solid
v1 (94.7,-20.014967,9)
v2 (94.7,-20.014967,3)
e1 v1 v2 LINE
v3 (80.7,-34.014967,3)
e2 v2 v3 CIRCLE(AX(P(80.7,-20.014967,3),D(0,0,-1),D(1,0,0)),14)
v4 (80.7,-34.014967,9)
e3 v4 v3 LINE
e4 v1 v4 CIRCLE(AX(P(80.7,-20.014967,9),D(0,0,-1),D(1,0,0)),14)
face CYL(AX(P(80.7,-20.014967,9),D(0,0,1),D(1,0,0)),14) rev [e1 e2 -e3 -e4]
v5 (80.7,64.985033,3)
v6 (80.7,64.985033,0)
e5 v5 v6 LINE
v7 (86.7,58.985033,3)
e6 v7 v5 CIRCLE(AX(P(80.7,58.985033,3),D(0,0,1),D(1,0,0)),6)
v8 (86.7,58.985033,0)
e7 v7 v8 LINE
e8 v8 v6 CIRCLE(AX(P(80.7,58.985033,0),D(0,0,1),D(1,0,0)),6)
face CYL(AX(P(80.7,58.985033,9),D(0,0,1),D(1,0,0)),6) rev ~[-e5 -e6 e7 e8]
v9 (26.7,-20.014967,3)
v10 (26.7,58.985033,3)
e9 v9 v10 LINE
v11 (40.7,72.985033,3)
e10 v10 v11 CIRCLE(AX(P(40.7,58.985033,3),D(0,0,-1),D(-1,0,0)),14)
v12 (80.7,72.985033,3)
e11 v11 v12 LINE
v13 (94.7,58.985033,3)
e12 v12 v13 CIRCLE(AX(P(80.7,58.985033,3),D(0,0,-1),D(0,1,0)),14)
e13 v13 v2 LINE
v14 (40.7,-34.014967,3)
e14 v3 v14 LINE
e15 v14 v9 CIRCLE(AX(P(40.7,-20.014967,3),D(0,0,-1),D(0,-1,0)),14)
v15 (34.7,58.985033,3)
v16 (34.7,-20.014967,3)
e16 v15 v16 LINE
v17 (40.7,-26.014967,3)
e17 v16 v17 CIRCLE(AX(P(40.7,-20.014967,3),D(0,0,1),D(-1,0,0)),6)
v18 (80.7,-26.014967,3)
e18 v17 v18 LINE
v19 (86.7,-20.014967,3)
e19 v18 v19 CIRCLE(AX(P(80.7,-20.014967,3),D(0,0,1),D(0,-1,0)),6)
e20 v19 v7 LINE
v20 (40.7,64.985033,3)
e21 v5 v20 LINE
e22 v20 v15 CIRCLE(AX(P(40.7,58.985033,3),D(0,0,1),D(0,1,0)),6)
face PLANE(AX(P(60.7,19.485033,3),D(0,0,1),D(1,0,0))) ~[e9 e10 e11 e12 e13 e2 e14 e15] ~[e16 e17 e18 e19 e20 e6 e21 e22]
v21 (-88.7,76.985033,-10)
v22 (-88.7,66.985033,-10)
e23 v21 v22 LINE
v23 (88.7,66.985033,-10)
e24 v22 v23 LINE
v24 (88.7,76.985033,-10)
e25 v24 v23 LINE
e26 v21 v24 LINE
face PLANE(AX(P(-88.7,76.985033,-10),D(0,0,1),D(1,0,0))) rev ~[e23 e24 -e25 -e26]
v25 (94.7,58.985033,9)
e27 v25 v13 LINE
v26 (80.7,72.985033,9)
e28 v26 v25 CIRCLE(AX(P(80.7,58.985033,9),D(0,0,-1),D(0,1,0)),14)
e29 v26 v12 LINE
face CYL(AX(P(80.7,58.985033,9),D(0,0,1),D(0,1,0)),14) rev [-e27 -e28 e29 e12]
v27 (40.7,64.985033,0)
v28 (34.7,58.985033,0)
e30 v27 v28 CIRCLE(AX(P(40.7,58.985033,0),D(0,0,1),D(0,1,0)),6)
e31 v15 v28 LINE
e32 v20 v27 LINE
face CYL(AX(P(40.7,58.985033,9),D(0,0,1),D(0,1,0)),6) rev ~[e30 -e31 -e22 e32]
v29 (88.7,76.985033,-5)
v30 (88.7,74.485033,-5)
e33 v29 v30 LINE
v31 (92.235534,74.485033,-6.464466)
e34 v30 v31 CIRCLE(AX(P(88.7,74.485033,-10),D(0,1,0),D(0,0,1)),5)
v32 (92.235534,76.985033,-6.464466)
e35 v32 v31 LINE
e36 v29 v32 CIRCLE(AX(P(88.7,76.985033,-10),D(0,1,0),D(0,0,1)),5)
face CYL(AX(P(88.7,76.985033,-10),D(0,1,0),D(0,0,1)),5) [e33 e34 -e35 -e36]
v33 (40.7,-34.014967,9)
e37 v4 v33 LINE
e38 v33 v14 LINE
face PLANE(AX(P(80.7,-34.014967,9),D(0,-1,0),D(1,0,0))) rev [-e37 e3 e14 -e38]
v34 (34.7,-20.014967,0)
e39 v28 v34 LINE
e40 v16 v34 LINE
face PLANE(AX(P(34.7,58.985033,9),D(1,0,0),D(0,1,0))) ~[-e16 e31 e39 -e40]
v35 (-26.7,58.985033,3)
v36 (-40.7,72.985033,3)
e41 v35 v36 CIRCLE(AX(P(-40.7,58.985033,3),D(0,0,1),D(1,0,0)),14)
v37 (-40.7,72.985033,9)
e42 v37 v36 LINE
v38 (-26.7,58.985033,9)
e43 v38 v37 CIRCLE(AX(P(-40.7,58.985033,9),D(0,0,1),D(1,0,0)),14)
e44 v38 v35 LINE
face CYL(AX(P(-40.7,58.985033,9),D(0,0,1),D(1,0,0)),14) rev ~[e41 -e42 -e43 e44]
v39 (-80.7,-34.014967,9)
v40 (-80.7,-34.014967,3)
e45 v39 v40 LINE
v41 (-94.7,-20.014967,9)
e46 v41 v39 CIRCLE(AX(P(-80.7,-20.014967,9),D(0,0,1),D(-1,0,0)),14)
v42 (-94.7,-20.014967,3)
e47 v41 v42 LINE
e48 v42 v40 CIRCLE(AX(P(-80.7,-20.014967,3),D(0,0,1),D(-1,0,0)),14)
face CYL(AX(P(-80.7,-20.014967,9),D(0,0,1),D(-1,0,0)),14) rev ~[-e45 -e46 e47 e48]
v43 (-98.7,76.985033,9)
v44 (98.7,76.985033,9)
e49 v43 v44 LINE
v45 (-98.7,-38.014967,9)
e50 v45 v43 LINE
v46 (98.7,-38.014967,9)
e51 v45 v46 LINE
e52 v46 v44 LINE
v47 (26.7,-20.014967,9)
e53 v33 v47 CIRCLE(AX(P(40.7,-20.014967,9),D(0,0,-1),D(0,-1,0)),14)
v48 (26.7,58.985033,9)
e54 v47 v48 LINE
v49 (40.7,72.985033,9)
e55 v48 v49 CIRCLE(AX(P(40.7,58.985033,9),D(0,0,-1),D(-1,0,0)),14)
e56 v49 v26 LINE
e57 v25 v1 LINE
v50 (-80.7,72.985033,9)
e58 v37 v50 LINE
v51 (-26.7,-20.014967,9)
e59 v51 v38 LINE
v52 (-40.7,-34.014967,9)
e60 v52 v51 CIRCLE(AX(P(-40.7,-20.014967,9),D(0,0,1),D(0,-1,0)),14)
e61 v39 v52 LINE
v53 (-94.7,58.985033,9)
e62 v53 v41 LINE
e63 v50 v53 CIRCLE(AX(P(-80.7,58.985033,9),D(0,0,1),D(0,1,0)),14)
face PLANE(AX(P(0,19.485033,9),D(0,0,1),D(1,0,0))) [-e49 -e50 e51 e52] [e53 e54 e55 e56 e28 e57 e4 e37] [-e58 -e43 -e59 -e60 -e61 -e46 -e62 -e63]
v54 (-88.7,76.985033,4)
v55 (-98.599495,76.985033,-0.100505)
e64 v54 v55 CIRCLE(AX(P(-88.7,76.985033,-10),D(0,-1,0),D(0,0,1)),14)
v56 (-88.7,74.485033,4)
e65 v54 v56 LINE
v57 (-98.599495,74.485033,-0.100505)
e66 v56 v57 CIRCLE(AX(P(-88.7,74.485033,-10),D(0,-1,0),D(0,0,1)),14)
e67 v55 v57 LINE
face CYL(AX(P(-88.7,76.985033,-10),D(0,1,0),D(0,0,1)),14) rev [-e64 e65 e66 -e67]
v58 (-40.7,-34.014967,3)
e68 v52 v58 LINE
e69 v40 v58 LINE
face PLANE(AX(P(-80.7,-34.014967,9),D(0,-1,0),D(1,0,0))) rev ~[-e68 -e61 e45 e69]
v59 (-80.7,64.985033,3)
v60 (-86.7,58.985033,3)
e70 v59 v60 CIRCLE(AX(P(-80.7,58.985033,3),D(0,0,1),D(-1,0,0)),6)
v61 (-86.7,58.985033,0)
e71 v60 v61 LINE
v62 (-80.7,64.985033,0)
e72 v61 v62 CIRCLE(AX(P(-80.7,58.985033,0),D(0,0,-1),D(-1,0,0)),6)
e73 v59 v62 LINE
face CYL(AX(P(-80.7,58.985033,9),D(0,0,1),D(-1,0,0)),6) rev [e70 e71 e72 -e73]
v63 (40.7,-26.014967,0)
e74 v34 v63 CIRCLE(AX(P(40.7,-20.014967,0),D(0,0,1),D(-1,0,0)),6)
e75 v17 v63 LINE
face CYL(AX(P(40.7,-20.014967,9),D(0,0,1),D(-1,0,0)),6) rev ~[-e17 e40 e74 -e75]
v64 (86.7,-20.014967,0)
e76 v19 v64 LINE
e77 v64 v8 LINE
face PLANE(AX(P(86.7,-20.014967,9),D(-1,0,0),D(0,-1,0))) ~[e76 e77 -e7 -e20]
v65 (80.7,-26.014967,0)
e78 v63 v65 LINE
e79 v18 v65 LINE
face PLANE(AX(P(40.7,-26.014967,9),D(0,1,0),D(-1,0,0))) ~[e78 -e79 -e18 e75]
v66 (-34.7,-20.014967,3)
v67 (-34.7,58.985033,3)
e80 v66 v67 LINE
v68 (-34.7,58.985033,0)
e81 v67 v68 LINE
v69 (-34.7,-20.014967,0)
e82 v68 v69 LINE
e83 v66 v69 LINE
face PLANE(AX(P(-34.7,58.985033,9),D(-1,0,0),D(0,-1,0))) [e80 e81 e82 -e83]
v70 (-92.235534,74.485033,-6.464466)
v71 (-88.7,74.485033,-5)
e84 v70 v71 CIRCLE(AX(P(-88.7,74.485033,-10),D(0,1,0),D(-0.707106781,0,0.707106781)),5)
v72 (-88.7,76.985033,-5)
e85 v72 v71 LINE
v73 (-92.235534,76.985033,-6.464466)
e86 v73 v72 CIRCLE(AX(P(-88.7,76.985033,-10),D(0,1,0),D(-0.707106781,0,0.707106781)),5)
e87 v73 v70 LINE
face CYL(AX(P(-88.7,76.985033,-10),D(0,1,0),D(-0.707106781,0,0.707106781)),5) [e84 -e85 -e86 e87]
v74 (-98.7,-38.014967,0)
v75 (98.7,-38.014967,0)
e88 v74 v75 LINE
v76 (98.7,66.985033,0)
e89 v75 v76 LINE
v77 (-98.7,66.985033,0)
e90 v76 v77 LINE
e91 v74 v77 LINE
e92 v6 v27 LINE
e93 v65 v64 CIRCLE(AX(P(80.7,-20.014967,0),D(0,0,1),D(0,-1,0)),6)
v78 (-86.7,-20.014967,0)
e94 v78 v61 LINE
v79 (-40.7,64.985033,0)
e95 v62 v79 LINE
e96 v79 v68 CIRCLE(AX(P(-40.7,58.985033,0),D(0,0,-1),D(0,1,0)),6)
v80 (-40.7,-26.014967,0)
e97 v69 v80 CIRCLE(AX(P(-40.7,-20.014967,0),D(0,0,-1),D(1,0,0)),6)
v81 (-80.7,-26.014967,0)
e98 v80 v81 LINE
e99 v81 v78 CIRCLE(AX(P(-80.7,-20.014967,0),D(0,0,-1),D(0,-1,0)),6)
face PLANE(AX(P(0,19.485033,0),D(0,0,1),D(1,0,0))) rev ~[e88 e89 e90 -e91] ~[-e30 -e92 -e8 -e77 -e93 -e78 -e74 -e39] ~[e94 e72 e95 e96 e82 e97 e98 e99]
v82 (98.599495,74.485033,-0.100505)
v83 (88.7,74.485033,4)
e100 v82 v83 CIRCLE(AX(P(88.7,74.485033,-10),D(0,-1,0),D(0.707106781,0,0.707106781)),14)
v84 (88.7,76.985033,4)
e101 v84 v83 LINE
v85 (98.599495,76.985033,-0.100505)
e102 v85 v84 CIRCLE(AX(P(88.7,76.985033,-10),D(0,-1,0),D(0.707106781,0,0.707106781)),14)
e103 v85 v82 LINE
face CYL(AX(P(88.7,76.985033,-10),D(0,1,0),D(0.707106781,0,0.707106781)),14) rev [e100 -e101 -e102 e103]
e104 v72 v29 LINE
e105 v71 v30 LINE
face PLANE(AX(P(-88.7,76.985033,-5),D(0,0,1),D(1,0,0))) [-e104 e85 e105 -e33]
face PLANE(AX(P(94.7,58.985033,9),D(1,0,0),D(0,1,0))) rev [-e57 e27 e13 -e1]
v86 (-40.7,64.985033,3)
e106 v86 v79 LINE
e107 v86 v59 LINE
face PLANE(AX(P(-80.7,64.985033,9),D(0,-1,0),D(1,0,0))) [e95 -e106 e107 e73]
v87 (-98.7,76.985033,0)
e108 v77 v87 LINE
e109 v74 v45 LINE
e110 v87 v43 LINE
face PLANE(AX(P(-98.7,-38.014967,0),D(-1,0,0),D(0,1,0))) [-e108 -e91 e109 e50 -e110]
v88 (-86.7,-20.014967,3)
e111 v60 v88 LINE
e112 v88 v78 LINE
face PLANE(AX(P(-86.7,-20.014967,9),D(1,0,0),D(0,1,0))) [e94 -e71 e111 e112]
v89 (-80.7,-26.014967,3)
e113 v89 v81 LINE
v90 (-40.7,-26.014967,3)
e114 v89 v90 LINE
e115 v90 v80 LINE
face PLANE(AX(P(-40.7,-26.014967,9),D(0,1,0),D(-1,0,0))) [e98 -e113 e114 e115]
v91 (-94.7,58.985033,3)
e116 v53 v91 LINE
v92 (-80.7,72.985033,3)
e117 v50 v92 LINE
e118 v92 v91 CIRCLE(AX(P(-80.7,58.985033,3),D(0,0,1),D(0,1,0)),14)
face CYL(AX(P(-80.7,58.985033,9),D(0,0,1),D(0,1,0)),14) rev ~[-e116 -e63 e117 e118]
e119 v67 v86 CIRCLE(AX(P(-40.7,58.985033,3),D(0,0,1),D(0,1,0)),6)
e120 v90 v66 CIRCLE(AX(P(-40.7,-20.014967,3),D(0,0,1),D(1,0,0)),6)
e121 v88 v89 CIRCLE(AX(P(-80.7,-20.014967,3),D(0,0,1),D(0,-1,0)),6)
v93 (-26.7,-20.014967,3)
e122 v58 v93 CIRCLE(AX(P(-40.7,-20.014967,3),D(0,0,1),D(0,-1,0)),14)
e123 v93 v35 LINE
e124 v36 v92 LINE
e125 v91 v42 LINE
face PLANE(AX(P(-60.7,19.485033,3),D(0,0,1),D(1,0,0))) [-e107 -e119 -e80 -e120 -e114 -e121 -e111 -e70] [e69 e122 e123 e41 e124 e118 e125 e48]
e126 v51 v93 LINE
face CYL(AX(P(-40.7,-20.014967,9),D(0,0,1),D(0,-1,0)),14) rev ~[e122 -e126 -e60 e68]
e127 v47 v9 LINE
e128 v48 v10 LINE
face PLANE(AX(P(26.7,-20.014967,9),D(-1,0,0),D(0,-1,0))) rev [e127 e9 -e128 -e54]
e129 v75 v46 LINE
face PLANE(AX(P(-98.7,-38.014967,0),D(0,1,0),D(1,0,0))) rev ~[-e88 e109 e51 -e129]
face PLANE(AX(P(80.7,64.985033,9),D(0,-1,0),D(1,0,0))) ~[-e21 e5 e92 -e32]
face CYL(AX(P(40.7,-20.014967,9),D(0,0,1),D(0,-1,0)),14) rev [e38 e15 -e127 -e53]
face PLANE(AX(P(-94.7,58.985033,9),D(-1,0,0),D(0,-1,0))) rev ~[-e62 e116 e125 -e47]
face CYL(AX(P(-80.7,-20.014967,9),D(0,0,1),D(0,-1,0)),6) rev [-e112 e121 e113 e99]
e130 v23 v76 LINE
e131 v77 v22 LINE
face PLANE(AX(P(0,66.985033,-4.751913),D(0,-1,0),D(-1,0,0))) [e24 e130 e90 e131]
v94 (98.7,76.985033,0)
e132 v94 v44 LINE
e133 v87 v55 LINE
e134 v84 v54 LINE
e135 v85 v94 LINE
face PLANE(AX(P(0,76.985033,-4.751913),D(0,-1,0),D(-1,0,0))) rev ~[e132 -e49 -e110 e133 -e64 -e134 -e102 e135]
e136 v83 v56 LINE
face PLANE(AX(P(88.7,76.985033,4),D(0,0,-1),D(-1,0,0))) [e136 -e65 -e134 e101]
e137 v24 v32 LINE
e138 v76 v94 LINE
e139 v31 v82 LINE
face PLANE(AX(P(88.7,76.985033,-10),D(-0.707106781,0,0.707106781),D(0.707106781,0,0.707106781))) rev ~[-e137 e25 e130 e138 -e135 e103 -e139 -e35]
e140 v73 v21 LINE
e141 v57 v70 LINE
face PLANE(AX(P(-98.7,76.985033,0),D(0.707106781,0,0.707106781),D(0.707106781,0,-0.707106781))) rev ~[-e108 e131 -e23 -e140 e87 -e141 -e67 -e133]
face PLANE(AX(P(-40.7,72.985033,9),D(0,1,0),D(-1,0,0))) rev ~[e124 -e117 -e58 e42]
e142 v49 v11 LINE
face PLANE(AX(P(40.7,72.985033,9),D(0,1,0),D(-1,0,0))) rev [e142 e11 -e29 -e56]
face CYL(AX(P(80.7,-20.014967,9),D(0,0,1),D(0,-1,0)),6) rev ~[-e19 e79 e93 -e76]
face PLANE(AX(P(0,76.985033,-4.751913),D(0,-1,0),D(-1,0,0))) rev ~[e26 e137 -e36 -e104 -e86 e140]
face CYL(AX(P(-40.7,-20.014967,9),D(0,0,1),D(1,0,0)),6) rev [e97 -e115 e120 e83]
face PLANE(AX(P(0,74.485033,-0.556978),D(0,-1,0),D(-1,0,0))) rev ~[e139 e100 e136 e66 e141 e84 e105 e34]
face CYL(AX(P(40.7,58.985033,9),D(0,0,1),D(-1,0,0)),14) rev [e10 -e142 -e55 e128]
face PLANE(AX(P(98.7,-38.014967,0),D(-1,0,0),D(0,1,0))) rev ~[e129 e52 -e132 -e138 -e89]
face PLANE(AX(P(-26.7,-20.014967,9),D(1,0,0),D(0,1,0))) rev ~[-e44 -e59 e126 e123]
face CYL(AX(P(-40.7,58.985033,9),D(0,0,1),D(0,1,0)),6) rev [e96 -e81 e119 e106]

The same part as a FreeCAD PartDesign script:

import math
import FreeCAD as App
import Part
import Sketcher

V = App.Vector

doc = App.newDocument("Part")
body = doc.addObject("PartDesign::Body", "Body")

# Sketch on XY plane
sketch1 = doc.addObject("Sketcher::SketchObject", "Sketch")
body.addObject(sketch1)
sketch1.AttachmentSupport = (doc.XY_Plane, [""])
sketch1.MapMode = "FlatFace"
sketch1.addGeometry([
    Part.LineSegment(V(-99, 77, 0), V(-99, -38, 0)),
    Part.LineSegment(V(-99, -38, 0), V(99, -38, 0)),
    Part.LineSegment(V(99, -38, 0), V(99, 77, 0)),
    Part.LineSegment(V(99, 77, 0), V(-99, 77, 0)),
], False)
sketch1.addConstraint([
    Sketcher.Constraint("Coincident", 0, 2, 1, 1),
    Sketcher.Constraint("Coincident", 1, 2, 2, 1),
    Sketcher.Constraint("Coincident", 2, 2, 3, 1),
    Sketcher.Constraint("Coincident", 3, 2, 0, 1),
    Sketcher.Constraint("Vertical", 0),
    Sketcher.Constraint("Horizontal", 1),
    Sketcher.Constraint("Vertical", 2),
    Sketcher.Constraint("Horizontal", 3),
    Sketcher.Constraint("DistanceY", 0, 2, 0, 1, 115.0),
    Sketcher.Constraint("DistanceX", 1, 1, 1, 2, 197.4),
    Sketcher.Constraint("DistanceX", 0, 2, -1, 1, 98.7),
    Sketcher.Constraint("DistanceY", 0, 2, -1, 1, 38.014967),
])
pad1 = doc.addObject("PartDesign::Pad", "Pad")
body.addObject(pad1)
pad1.Profile = sketch1
pad1.Length = 9

# Sketch on XZ plane
sketch2 = doc.addObject("Sketcher::SketchObject", "Sketch001")
body.addObject(sketch2)
sketch2.AttachmentSupport = (doc.XZ_Plane, [""])
sketch2.MapMode = "FlatFace"
sketch2.AttachmentOffset = App.Placement(V(0, 0, -76.985033), App.Rotation())
sketch2.addGeometry([
    Part.LineSegment(V(89, -10, 0), V(-89, -10, 0)),
    Part.LineSegment(V(-89, -10, 0), V(-99, 0, 0)),
    Part.LineSegment(V(-99, 0, 0), V(99, 0, 0)),
    Part.LineSegment(V(99, 0, 0), V(89, -10, 0)),
], False)
sketch2.addConstraint([
    Sketcher.Constraint("Coincident", 0, 2, 1, 1),
    Sketcher.Constraint("Coincident", 1, 2, 2, 1),
    Sketcher.Constraint("Coincident", 2, 2, 3, 1),
    Sketcher.Constraint("Coincident", 3, 2, 0, 1),
    Sketcher.Constraint("Horizontal", 0),
    Sketcher.Constraint("Horizontal", 2),
    Sketcher.Constraint("Symmetric", 1, 2, 2, 2, -1, 1),
    Sketcher.Constraint("Perpendicular", 1, 3),
    Sketcher.Constraint("Equal", 1, 3),
    Sketcher.Constraint("DistanceX", 0, 2, 0, 1, 177.4),
    Sketcher.Constraint("DistanceX", 2, 1, 2, 2, 197.4),
])
pad2 = doc.addObject("PartDesign::Pad", "Pad001")
body.addObject(pad2)
pad2.Profile = sketch2
pad2.Length = 10

# Sketch on XY plane
sketch3 = doc.addObject("Sketcher::SketchObject", "Sketch002")
body.addObject(sketch3)
sketch3.AttachmentSupport = (doc.XY_Plane, [""])
sketch3.MapMode = "FlatFace"
sketch3.AttachmentOffset = App.Placement(V(0, 0, 9), App.Rotation())
sketch3.addGeometry([
    Part.LineSegment(V(-41, 65, 0), V(-81, 65, 0)),  # 0
    Part.ArcOfCircle(Part.Circle(V(-81, 59, 0), V(0, 0, 1), 6), math.radians(90), math.radians(180)),  # 1
    Part.LineSegment(V(-87, 59, 0), V(-87, -20, 0)),  # 2
    Part.ArcOfCircle(Part.Circle(V(-81, -20, 0), V(0, 0, 1), 6), math.radians(180), math.radians(270)),  # 3
    Part.LineSegment(V(-81, -26, 0), V(-41, -26, 0)),  # 4
    Part.ArcOfCircle(Part.Circle(V(-41, -20, 0), V(0, 0, 1), 6), math.radians(-90), math.radians(0)),  # 5
    Part.LineSegment(V(-35, -20, 0), V(-35, 59, 0)),  # 6
    Part.ArcOfCircle(Part.Circle(V(-41, 59, 0), V(0, 0, 1), 6), math.radians(0), math.radians(90)),  # 7
], False)
sketch3.addConstraint([
    Sketcher.Constraint("Tangent", 0, 2, 1, 1),
    Sketcher.Constraint("Tangent", 1, 2, 2, 1),
    Sketcher.Constraint("Tangent", 2, 2, 3, 1),
    Sketcher.Constraint("Tangent", 3, 2, 4, 1),
    Sketcher.Constraint("Tangent", 4, 2, 5, 1),
    Sketcher.Constraint("Tangent", 5, 2, 6, 1),
    Sketcher.Constraint("Tangent", 6, 2, 7, 1),
    Sketcher.Constraint("Tangent", 7, 2, 0, 1),
    Sketcher.Constraint("Horizontal", 0),
    Sketcher.Constraint("Vertical", 2),
    Sketcher.Constraint("Horizontal", 4),
    Sketcher.Constraint("Vertical", 6),
    Sketcher.Constraint("Equal", 1, 3),
    Sketcher.Constraint("Equal", 3, 5),
    Sketcher.Constraint("Equal", 5, 7),
    Sketcher.Constraint("Radius", 1, 6.0),
    Sketcher.Constraint("DistanceX", 0, 2, 0, 1, 40.0),
    Sketcher.Constraint("DistanceY", 2, 2, 2, 1, 79.0),
    Sketcher.Constraint("DistanceX", 1, 3, -1, 1, 80.7),
    Sketcher.Constraint("DistanceY", -1, 1, 1, 3, 58.985033),
])
pocket1 = doc.addObject("PartDesign::Pocket", "Pocket")
body.addObject(pocket1)
pocket1.Profile = sketch3
pocket1.Length = 9

# Sketch on XY plane
sketch4 = doc.addObject("Sketcher::SketchObject", "Sketch003")
body.addObject(sketch4)
sketch4.AttachmentSupport = (doc.XY_Plane, [""])
sketch4.MapMode = "FlatFace"
sketch4.AttachmentOffset = App.Placement(V(0, 0, 9), App.Rotation())
sketch4.addGeometry([
    Part.LineSegment(V(-95, 59, 0), V(-95, -20, 0)),  # 0
    Part.ArcOfCircle(Part.Circle(V(-81, -20, 0), V(0, 0, 1), 14), math.radians(180), math.radians(270)),  # 1
    Part.LineSegment(V(-81, -34, 0), V(-41, -34, 0)),  # 2
    Part.ArcOfCircle(Part.Circle(V(-41, -20, 0), V(0, 0, 1), 14), math.radians(-90), math.radians(0)),  # 3
    Part.LineSegment(V(-27, -20, 0), V(-27, 59, 0)),  # 4
    Part.ArcOfCircle(Part.Circle(V(-41, 59, 0), V(0, 0, 1), 14), math.radians(0), math.radians(90)),  # 5
    Part.LineSegment(V(-41, 73, 0), V(-81, 73, 0)),  # 6
    Part.ArcOfCircle(Part.Circle(V(-81, 59, 0), V(0, 0, 1), 14), math.radians(90), math.radians(180)),  # 7
], False)
sketch4.addConstraint([
    Sketcher.Constraint("Tangent", 0, 2, 1, 1),
    Sketcher.Constraint("Tangent", 1, 2, 2, 1),
    Sketcher.Constraint("Tangent", 2, 2, 3, 1),
    Sketcher.Constraint("Tangent", 3, 2, 4, 1),
    Sketcher.Constraint("Tangent", 4, 2, 5, 1),
    Sketcher.Constraint("Tangent", 5, 2, 6, 1),
    Sketcher.Constraint("Tangent", 6, 2, 7, 1),
    Sketcher.Constraint("Tangent", 7, 2, 0, 1),
    Sketcher.Constraint("Vertical", 0),
    Sketcher.Constraint("Horizontal", 2),
    Sketcher.Constraint("Vertical", 4),
    Sketcher.Constraint("Horizontal", 6),
    Sketcher.Constraint("Equal", 1, 3),
    Sketcher.Constraint("Equal", 3, 5),
    Sketcher.Constraint("Equal", 5, 7),
    Sketcher.Constraint("Radius", 1, 14.0),
    Sketcher.Constraint("DistanceX", 2, 1, 2, 2, 40.0),
    Sketcher.Constraint("DistanceY", 0, 2, 0, 1, 79.0),
    Sketcher.Constraint("DistanceX", 1, 3, -1, 1, 80.7),
    Sketcher.Constraint("DistanceY", 1, 3, -1, 1, 20.014967),
])
pocket2 = doc.addObject("PartDesign::Pocket", "Pocket001")
body.addObject(pocket2)
pocket2.Profile = sketch4
pocket2.Length = 6
doc.recompute()

mirrored = doc.addObject("PartDesign::Mirrored", "Mirrored")
body.addObject(mirrored)
mirrored.Originals = [pocket1, pocket2]
mirrored.MirrorPlane = (doc.YZ_Plane, [""])
body.Tip = mirrored

# Sketch on XZ plane
sketch5 = doc.addObject("Sketcher::SketchObject", "Sketch004")
body.addObject(sketch5)
sketch5.AttachmentSupport = (doc.XZ_Plane, [""])
sketch5.MapMode = "FlatFace"
sketch5.AttachmentOffset = App.Placement(V(0, 0, -76.985033), App.Rotation())
sketch5.addGeometry([
    Part.LineSegment(V(88.7, -5, 0), V(-88.7, -5, 0)),  # 0
    Part.ArcOfCircle(Part.Circle(V(-88.7, -10, 0), V(0, 0, 1), 5), math.radians(90), math.radians(135)),  # 1
    Part.LineSegment(V(-92.2, -6.5, 0), V(-98.6, -0.1, 0)),  # 2
    Part.ArcOfCircle(Part.Circle(V(-88.7, -10, 0), V(0, 0, 1), 14), math.radians(90), math.radians(135)),  # 3
    Part.LineSegment(V(-88.7, 4, 0), V(88.7, 4, 0)),  # 4
    Part.ArcOfCircle(Part.Circle(V(88.7, -10, 0), V(0, 0, 1), 14), math.radians(45), math.radians(90)),  # 5
    Part.LineSegment(V(98.6, -0.1, 0), V(92.2, -6.5, 0)),  # 6
    Part.ArcOfCircle(Part.Circle(V(88.7, -10, 0), V(0, 0, 1), 5), math.radians(45), math.radians(90)),  # 7
], False)
sketch5.addConstraint([
    Sketcher.Constraint("Tangent", 0, 2, 1, 1),
    Sketcher.Constraint("Coincident", 1, 2, 2, 1),
    Sketcher.Constraint("Coincident", 2, 2, 3, 2),
    Sketcher.Constraint("Tangent", 3, 1, 4, 1),
    Sketcher.Constraint("Tangent", 4, 2, 5, 2),
    Sketcher.Constraint("Coincident", 5, 1, 6, 1),
    Sketcher.Constraint("Coincident", 6, 2, 7, 1),
    Sketcher.Constraint("Tangent", 7, 2, 0, 1),
    Sketcher.Constraint("Horizontal", 0),
    Sketcher.Constraint("Horizontal", 4),
    Sketcher.Constraint("Coincident", 3, 3, 1, 3),
    Sketcher.Constraint("Coincident", 7, 3, 5, 3),
    Sketcher.Constraint("Equal", 3, 5),
    Sketcher.Constraint("Symmetric", 2, 2, 5, 1, -2),
    Sketcher.Constraint("Perpendicular", 2, 6),
    Sketcher.Constraint("Horizontal", 1, 2, 6, 2),
    Sketcher.Constraint("Radius", 1, 5.0),
    Sketcher.Constraint("Radius", 3, 14.0),
    Sketcher.Constraint("DistanceX", 0, 2, 0, 1, 177.4),
    Sketcher.Constraint("DistanceY", 1, 3, -1, 1, 10.0),
    Sketcher.Constraint("DistanceX", 1, 2, -1, 1, 92.235534),
])
pocket3 = doc.addObject("PartDesign::Pocket", "Pocket002")
body.addObject(pocket3)
pocket3.Profile = sketch5
pocket3.Length = 2.5
pocket3.Reversed = True

doc.recompute()
